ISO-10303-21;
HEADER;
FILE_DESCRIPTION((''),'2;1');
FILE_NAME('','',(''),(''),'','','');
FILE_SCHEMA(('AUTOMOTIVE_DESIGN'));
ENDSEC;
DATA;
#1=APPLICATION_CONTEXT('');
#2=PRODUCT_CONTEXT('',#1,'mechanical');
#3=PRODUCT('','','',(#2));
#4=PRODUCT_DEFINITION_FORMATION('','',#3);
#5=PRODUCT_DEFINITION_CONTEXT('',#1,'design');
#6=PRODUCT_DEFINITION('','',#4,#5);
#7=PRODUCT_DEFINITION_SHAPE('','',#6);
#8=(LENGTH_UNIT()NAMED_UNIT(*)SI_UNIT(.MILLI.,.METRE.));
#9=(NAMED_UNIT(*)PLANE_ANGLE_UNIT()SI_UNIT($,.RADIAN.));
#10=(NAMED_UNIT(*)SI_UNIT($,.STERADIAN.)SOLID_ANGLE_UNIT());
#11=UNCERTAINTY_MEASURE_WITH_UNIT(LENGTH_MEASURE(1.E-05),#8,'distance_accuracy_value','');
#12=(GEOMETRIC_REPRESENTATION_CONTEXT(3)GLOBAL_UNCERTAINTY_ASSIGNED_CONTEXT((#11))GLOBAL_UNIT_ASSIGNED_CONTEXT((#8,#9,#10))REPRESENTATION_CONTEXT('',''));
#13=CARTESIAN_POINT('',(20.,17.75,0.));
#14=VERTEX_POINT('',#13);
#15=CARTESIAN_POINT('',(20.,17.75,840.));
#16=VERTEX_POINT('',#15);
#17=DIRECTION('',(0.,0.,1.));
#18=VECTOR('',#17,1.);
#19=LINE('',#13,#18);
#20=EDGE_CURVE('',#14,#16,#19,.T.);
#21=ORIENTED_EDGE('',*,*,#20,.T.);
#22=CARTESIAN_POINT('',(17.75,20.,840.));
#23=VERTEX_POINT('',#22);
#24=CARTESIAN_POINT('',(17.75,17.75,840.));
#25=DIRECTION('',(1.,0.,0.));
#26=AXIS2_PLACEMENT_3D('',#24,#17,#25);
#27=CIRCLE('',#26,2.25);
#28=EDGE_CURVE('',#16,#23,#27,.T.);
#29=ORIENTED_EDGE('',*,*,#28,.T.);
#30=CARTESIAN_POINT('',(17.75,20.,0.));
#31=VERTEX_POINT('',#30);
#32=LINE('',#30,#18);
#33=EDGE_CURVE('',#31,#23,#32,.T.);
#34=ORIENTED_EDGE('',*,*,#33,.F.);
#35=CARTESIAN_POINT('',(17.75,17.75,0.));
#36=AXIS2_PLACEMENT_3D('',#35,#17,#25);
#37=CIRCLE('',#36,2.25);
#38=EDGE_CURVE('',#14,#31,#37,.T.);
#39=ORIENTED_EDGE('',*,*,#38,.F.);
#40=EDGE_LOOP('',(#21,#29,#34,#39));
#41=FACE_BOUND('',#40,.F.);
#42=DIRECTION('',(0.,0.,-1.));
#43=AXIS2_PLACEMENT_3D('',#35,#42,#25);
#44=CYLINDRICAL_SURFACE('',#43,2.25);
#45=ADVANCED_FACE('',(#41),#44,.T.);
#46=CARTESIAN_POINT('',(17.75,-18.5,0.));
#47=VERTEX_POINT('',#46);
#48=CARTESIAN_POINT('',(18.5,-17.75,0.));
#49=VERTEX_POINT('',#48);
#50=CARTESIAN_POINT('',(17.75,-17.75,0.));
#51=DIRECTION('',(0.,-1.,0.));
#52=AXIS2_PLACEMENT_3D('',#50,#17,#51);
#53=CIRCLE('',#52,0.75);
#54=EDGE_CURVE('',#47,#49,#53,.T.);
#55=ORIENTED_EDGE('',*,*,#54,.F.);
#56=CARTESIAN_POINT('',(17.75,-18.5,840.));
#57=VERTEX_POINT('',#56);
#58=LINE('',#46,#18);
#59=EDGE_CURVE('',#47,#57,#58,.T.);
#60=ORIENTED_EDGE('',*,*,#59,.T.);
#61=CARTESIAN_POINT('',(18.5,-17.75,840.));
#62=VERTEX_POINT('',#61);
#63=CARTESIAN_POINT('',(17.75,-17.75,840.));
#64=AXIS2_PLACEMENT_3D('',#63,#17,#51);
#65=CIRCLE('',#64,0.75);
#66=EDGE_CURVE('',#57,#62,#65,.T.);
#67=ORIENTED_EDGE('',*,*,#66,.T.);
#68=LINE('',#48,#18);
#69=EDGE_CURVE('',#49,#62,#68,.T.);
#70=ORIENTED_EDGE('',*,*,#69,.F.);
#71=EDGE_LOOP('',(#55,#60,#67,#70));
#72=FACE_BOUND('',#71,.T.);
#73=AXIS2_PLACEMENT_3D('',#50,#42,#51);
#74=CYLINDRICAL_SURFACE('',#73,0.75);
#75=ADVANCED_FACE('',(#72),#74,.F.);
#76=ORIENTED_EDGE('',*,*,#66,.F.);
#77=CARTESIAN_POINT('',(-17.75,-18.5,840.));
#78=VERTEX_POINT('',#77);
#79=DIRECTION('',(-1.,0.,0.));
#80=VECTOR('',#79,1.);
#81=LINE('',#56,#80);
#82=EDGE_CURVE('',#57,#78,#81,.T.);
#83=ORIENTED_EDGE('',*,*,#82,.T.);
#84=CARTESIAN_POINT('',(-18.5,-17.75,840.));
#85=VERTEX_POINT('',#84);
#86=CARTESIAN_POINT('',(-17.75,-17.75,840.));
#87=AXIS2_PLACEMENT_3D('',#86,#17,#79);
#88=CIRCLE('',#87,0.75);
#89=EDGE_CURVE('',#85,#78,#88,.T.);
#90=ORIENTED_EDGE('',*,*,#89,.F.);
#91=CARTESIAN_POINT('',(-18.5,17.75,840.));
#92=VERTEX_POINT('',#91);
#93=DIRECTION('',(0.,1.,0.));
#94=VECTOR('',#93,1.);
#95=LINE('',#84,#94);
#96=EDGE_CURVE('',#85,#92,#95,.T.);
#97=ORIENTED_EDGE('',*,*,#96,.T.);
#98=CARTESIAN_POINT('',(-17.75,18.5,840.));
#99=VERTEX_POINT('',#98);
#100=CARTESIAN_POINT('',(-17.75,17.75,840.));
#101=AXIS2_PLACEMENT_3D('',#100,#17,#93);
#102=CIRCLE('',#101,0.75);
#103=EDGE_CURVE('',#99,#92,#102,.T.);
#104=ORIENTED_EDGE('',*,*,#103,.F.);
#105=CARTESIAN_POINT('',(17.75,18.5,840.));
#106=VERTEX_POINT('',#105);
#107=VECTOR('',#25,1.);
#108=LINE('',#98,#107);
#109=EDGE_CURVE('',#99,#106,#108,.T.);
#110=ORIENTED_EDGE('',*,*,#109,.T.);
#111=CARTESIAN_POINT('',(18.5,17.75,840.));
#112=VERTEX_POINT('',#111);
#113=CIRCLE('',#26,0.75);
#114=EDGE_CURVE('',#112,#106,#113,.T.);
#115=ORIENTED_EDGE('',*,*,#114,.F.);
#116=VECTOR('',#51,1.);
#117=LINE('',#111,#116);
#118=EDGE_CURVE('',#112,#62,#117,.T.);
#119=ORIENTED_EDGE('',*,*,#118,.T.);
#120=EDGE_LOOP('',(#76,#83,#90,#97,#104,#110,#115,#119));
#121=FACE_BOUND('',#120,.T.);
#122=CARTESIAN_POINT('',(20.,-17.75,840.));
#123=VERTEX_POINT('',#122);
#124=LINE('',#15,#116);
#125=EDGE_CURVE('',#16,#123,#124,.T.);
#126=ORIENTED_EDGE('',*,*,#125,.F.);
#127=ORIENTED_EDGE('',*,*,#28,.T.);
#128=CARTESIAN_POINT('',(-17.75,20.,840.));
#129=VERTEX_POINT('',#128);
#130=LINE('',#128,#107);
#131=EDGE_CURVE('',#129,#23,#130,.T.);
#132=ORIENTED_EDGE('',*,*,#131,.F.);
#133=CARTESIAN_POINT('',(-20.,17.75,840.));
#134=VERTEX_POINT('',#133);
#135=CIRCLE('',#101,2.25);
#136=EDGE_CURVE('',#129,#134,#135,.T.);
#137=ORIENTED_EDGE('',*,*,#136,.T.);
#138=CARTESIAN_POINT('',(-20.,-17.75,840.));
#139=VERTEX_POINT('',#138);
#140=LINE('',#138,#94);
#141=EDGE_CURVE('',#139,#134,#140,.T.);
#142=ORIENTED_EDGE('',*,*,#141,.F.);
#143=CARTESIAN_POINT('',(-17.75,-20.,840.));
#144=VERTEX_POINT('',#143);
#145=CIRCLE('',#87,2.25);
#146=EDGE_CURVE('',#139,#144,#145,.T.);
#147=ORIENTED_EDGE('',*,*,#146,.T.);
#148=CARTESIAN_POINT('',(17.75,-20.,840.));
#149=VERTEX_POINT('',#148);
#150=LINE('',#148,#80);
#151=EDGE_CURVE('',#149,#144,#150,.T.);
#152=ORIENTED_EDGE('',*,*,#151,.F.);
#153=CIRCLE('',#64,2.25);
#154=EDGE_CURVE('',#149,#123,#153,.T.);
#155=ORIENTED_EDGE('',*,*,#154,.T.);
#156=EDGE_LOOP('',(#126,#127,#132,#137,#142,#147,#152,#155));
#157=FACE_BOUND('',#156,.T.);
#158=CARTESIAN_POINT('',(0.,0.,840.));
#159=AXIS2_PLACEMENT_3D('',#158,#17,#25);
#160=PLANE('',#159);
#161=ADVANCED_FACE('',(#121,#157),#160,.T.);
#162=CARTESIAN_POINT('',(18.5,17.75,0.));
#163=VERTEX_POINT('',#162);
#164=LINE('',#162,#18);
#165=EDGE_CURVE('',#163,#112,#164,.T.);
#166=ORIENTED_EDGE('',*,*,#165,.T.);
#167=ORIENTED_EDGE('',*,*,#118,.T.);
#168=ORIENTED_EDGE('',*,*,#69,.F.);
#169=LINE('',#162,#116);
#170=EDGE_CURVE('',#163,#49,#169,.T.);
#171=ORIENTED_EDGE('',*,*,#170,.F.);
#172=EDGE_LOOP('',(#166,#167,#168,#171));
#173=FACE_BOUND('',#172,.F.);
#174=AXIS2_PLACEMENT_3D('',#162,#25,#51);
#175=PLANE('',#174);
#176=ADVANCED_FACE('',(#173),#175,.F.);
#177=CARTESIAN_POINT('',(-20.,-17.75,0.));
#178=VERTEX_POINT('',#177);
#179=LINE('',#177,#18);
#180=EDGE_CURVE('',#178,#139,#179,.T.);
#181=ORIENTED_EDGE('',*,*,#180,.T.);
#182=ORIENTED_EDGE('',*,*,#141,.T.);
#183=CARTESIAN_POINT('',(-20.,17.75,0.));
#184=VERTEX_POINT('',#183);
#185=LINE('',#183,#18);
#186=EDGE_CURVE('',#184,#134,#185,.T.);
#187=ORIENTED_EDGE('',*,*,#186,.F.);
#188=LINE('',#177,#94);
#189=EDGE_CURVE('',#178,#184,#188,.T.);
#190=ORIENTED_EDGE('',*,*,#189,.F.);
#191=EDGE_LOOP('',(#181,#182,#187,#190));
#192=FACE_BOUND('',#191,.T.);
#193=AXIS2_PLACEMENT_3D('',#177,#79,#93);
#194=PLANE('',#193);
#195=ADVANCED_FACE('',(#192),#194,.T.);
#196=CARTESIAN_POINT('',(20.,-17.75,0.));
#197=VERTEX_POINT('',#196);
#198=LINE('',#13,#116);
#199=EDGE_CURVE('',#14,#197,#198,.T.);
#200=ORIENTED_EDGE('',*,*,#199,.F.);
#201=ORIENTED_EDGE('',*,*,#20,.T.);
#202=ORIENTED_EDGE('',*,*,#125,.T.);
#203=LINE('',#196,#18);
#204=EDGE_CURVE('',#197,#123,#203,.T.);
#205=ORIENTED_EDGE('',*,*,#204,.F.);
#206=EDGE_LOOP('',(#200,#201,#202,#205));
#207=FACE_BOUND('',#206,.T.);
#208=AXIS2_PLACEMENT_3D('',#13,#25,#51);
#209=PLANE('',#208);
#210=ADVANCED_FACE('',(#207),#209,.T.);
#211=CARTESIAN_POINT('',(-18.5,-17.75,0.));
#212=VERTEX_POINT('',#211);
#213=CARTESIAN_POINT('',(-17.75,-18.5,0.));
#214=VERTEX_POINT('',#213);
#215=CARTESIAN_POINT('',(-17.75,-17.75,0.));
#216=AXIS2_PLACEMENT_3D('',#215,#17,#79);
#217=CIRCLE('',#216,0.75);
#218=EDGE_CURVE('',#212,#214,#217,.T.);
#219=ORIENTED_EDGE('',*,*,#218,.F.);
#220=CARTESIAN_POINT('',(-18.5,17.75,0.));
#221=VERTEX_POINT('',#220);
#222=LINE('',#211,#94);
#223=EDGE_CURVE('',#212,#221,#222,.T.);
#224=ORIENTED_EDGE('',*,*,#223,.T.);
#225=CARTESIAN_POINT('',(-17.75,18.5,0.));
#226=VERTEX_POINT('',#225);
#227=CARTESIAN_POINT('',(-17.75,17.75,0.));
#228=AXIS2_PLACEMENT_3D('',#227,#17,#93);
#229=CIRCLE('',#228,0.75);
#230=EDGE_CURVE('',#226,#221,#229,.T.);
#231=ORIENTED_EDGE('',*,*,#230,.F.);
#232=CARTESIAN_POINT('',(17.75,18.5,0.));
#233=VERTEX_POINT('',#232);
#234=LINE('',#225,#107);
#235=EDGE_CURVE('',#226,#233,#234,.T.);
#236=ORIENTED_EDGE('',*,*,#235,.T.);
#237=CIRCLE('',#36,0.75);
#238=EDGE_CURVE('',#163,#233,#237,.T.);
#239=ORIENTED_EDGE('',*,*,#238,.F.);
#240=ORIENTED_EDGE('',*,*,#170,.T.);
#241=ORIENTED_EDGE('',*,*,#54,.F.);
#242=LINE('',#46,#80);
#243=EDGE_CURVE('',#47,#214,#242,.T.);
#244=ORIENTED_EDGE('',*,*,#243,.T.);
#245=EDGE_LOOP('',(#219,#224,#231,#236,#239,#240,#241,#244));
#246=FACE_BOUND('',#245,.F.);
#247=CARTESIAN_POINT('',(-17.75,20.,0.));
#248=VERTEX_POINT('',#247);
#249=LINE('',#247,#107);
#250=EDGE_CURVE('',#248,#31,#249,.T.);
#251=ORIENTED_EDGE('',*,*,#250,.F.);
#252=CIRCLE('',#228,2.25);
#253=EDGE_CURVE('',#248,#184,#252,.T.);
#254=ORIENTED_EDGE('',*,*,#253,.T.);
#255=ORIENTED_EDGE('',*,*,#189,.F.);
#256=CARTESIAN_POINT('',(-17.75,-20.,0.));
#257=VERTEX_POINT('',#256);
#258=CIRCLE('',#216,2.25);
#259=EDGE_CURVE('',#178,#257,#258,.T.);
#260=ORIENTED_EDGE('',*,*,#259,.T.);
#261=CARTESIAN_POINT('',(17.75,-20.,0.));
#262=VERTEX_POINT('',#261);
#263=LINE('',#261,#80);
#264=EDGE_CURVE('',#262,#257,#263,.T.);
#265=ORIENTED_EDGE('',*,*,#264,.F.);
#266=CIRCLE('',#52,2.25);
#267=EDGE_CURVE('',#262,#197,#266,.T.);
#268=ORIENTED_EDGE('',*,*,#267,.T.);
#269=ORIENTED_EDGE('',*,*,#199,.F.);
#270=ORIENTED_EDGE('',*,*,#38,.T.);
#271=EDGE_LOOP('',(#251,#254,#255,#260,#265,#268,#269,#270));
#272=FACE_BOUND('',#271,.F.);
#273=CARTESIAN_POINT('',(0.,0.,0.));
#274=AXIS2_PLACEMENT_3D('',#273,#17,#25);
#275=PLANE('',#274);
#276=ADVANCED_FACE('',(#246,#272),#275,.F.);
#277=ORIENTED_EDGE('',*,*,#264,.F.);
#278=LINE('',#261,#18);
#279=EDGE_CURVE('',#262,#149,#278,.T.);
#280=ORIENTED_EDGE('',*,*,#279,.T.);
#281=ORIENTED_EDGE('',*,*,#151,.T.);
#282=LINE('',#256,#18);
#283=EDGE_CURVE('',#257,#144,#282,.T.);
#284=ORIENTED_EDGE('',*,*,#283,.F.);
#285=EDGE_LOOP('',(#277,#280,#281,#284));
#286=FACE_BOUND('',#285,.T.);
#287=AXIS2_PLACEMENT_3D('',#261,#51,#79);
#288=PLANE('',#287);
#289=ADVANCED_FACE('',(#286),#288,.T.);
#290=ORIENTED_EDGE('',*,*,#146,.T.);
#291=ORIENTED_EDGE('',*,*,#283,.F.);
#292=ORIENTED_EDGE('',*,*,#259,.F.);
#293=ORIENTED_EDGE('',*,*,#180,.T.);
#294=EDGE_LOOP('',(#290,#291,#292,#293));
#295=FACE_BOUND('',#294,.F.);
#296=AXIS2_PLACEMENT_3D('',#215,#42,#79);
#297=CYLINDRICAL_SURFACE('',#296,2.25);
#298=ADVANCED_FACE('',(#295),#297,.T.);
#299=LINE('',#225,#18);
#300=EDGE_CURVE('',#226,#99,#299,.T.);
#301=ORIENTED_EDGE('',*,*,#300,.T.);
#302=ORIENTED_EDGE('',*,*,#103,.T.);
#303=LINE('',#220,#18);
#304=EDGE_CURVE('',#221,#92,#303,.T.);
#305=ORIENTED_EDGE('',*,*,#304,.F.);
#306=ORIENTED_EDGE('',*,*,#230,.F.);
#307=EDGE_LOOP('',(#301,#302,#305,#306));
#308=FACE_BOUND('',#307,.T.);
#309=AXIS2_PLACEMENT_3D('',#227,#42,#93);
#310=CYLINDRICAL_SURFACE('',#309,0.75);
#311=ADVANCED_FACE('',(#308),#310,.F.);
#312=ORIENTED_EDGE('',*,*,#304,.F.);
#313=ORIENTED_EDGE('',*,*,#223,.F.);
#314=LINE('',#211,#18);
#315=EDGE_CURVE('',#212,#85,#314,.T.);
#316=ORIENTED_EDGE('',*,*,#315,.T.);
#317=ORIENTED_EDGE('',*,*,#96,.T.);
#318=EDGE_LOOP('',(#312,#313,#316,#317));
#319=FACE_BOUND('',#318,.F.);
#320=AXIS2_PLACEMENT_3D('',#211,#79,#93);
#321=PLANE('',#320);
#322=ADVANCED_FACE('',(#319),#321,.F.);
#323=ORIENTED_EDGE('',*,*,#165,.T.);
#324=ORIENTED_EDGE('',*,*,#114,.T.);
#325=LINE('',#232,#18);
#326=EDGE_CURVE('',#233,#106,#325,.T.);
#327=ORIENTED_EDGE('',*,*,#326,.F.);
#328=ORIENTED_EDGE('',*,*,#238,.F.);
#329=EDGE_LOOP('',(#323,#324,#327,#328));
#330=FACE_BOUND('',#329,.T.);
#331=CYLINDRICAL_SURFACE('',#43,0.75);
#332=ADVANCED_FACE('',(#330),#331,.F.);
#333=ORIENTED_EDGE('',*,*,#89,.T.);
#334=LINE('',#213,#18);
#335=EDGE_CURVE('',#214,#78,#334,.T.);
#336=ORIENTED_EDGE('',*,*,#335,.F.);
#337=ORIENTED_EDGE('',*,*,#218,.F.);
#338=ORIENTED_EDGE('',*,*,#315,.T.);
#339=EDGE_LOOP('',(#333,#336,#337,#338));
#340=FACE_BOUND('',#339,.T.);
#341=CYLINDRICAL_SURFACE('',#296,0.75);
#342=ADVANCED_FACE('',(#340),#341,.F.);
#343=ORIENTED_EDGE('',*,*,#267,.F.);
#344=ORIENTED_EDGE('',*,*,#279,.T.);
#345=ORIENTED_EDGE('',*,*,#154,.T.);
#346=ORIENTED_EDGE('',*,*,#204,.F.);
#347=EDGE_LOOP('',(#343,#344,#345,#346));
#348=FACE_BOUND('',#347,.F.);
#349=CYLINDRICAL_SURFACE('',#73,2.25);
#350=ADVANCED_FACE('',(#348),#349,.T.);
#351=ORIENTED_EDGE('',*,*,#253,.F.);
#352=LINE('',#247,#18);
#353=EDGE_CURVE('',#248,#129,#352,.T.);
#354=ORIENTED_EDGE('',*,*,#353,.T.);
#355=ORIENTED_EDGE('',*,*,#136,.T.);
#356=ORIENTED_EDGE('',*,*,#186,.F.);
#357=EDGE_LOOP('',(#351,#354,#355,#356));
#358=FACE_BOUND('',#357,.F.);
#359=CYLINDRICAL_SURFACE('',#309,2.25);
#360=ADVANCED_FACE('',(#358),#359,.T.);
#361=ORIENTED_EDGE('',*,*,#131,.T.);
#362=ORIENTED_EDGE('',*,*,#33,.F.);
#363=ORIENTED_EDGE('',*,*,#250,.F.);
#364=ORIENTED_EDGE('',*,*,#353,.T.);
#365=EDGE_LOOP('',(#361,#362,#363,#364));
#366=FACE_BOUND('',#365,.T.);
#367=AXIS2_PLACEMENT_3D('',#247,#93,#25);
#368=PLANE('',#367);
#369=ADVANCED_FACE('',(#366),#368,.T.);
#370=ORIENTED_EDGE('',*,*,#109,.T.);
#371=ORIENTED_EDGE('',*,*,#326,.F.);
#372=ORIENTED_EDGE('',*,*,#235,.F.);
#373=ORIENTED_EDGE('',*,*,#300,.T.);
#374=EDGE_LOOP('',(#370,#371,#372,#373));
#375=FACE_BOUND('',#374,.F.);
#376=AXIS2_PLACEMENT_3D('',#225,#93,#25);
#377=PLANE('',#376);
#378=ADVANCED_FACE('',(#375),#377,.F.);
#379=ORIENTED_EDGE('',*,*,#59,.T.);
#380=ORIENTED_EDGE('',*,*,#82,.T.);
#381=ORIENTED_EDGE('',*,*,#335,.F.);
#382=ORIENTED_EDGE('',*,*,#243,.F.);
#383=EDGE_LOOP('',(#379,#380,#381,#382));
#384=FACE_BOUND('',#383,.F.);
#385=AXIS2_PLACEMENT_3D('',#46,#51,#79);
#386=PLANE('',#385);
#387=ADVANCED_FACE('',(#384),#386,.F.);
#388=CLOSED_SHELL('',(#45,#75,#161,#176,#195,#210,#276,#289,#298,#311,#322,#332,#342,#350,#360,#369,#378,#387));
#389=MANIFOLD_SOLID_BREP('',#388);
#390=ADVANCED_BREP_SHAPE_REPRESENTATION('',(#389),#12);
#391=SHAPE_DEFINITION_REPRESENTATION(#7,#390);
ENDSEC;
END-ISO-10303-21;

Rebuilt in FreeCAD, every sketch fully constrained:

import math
import FreeCAD as App
import Part
import Sketcher

doc = App.newDocument("Part")
body = doc.addObject("PartDesign::Body", "Body")

sketch1 = doc.addObject("Sketcher::SketchObject", "Sketch")
body.addObject(sketch1)
sketch1.AttachmentSupport = (doc.XY_Plane, [""])
sketch1.MapMode = "FlatFace"
sketch1.addGeometry([
    Part.LineSegment(App.Vector(-20, 17.75, 0), App.Vector(-20, -17.75, 0)),
    Part.ArcOfCircle(Part.Circle(App.Vector(-17.75, -17.75, 0), App.Vector(0, 0, 1), 2.25), math.radians(180), math.radians(270)),
    Part.LineSegment(App.Vector(-17.75, -20, 0), App.Vector(17.75, -20, 0)),
    Part.ArcOfCircle(Part.Circle(App.Vector(17.75, -17.75, 0), App.Vector(0, 0, 1), 2.25), math.radians(-90), math.radians(0)),
    Part.LineSegment(App.Vector(20, -17.75, 0), App.Vector(20, 17.75, 0)),
    Part.ArcOfCircle(Part.Circle(App.Vector(17.75, 17.75, 0), App.Vector(0, 0, 1), 2.25), math.radians(0), math.radians(90)),
    Part.LineSegment(App.Vector(17.75, 20, 0), App.Vector(-17.75, 20, 0)),
    Part.ArcOfCircle(Part.Circle(App.Vector(-17.75, 17.75, 0), App.Vector(0, 0, 1), 2.25), math.radians(90), math.radians(180)),
    Part.ArcOfCircle(Part.Circle(App.Vector(-17.75, 17.75, 0), App.Vector(0, 0, 1), 0.75), math.radians(90), math.radians(180)),
    Part.LineSegment(App.Vector(-17.75, 18.5, 0), App.Vector(17.75, 18.5, 0)),
    Part.ArcOfCircle(Part.Circle(App.Vector(17.75, 17.75, 0), App.Vector(0, 0, 1), 0.75), math.radians(0), math.radians(90)),
    Part.LineSegment(App.Vector(18.5, 17.75, 0), App.Vector(18.5, -17.75, 0)),
    Part.ArcOfCircle(Part.Circle(App.Vector(17.75, -17.75, 0), App.Vector(0, 0, 1), 0.75), math.radians(-90), math.radians(0)),
    Part.LineSegment(App.Vector(17.75, -18.5, 0), App.Vector(-17.75, -18.5, 0)),
    Part.ArcOfCircle(Part.Circle(App.Vector(-17.75, -17.75, 0), App.Vector(0, 0, 1), 0.75), math.radians(180), math.radians(270)),
    Part.LineSegment(App.Vector(-18.5, -17.75, 0), App.Vector(-18.5, 17.75, 0)),
], False)
sketch1.addConstraint([
    Sketcher.Constraint("Tangent", 0, 2, 1, 1),
    Sketcher.Constraint("Tangent", 1, 2, 2, 1),
    Sketcher.Constraint("Tangent", 2, 2, 3, 1),
    Sketcher.Constraint("Tangent", 3, 2, 4, 1),
    Sketcher.Constraint("Tangent", 4, 2, 5, 1),
    Sketcher.Constraint("Tangent", 5, 2, 6, 1),
    Sketcher.Constraint("Tangent", 6, 2, 7, 1),
    Sketcher.Constraint("Tangent", 7, 2, 0, 1),
    Sketcher.Constraint("Tangent", 8, 1, 9, 1),
    Sketcher.Constraint("Tangent", 9, 2, 10, 2),
    Sketcher.Constraint("Tangent", 10, 1, 11, 1),
    Sketcher.Constraint("Tangent", 11, 2, 12, 2),
    Sketcher.Constraint("Tangent", 12, 1, 13, 1),
    Sketcher.Constraint("Tangent", 13, 2, 14, 2),
    Sketcher.Constraint("Tangent", 14, 1, 15, 1),
    Sketcher.Constraint("Tangent", 15, 2, 8, 2),
    Sketcher.Constraint("Vertical", 0),
    Sketcher.Constraint("Horizontal", 2),
    Sketcher.Constraint("Vertical", 4),
    Sketcher.Constraint("Horizontal", 6),
    Sketcher.Constraint("Horizontal", 9),
    Sketcher.Constraint("Vertical", 11),
    Sketcher.Constraint("Horizontal", 13),
    Sketcher.Constraint("Vertical", 15),
    Sketcher.Constraint("Coincident", 8, 3, 7, 3),
    Sketcher.Constraint("Coincident", 10, 3, 5, 3),
    Sketcher.Constraint("Coincident", 12, 3, 3, 3),
    Sketcher.Constraint("Equal", 1, 3),
    Sketcher.Constraint("Equal", 3, 5),
    Sketcher.Constraint("Equal", 5, 7),
    Sketcher.Constraint("Equal", 12, 14),
    Sketcher.Constraint("Symmetric", 1, 3, 5, 3, -1, 1),
    Sketcher.Constraint("Equal", 13, 0),
    Sketcher.Constraint("Radius", 1, 2.25),
    Sketcher.Constraint("Radius", 8, 0.75),
    Sketcher.Constraint("DistanceX", 0, 2, -1, 1, 20.0),
])
pad1 = doc.addObject("PartDesign::Pad", "Pad")
body.addObject(pad1)
pad1.Profile = sketch1
pad1.Length = 840

doc.recompute()
